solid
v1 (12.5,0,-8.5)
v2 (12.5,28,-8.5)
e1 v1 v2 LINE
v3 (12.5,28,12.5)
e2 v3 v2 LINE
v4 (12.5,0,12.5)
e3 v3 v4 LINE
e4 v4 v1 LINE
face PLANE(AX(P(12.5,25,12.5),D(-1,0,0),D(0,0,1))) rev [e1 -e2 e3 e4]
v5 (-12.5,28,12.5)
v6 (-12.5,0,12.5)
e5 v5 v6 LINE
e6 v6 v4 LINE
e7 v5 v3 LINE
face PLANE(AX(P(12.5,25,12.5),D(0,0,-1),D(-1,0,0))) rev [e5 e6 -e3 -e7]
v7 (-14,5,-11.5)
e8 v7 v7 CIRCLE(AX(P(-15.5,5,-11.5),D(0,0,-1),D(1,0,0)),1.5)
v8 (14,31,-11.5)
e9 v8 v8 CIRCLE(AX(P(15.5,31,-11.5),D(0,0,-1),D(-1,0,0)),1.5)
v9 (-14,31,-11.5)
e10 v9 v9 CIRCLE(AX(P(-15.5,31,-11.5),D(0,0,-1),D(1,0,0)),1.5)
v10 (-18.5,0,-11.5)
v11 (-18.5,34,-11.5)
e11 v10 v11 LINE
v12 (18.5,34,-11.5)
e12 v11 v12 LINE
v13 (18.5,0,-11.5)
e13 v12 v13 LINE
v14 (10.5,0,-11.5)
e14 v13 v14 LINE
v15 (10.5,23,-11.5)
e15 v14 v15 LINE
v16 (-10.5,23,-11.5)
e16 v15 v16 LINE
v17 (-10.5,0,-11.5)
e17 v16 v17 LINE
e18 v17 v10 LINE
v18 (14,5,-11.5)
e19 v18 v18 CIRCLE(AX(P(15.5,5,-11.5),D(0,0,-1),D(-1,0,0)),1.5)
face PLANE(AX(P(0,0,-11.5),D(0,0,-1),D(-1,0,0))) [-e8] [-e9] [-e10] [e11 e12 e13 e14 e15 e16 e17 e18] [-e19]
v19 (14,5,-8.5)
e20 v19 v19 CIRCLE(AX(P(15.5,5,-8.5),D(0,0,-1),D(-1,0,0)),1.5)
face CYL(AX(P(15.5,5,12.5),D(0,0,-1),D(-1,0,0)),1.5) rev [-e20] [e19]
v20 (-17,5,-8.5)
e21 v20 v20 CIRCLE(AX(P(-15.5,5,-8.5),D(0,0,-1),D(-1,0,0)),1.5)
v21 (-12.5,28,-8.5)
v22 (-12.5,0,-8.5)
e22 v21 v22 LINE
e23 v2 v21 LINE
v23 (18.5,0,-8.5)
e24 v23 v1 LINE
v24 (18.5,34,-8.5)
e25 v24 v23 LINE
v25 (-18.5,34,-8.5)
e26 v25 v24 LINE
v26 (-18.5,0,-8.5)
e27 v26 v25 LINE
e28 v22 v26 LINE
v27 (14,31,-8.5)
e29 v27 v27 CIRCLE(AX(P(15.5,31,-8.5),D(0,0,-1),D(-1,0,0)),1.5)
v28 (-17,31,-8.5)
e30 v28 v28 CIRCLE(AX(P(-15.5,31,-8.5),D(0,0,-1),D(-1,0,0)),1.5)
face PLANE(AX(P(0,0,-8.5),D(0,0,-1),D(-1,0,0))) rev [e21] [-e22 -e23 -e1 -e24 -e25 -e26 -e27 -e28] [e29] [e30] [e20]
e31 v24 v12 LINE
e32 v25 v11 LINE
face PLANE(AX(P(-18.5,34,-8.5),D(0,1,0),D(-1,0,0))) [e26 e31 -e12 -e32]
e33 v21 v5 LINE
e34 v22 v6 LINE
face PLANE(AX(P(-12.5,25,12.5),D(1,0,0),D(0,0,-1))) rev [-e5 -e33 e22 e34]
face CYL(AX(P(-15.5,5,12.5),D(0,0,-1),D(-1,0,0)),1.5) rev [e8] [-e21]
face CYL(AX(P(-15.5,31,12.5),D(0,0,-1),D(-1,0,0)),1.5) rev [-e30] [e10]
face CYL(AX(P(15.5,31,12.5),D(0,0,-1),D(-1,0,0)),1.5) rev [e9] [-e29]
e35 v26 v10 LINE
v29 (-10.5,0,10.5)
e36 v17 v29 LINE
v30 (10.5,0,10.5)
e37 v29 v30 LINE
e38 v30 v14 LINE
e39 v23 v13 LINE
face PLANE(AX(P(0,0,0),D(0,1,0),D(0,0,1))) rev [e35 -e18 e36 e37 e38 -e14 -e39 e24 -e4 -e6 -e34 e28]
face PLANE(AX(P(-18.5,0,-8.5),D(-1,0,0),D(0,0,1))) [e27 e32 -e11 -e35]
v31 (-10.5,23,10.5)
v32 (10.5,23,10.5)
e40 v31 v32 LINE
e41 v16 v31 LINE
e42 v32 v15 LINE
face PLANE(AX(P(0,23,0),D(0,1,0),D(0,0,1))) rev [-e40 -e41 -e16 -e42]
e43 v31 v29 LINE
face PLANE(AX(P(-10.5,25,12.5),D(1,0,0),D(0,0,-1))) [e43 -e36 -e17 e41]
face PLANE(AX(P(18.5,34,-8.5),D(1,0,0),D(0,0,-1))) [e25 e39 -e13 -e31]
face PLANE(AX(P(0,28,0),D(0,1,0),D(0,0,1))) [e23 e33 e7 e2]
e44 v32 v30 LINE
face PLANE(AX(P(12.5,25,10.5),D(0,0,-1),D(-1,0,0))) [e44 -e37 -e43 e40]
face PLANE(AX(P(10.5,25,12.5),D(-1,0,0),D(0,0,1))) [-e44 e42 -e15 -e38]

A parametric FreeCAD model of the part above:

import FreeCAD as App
import Part
import Sketcher

V = App.Vector
Q = App.Units.Quantity


def faces_at(feature, points):
    """Names of the faces that lie closest to the given points."""
    faces = feature.Shape.Faces
    near = lambda p: min(range(len(faces)), key=lambda i: faces[i].distToShape(Part.Vertex(*p))[0])
    return sorted({f"Face{near(p) + 1}" for p in points})


def add_polygon(sketch, points):
    """Adds a closed chain of lines whose ends are joined by coincident constraints."""
    first, n = sketch.GeometryCount, len(points)
    for a, b in zip(points, points[1:] + points[:1]):
        sketch.addGeometry(Part.LineSegment(App.Vector(*a, 0), App.Vector(*b, 0)), False)
    for i in range(n):
        sketch.addConstraint(Sketcher.Constraint("Coincident", first + i, 2, first + (i + 1) % n, 1))

doc = App.newDocument("Part")
body = doc.addObject("PartDesign::Body", "Body")

# Sketch on XZ plane
sketch1 = body.newObject("Sketcher::SketchObject", "Sketch")
sketch1.AttachmentSupport = (doc.getObject("XZ_Plane"), [""])
sketch1.MapMode = "FlatFace"
add_polygon(sketch1, [(-12.5, -12.5), (-12.5, 12.5), (12.5, 12.5), (12.5, -12.5)])  # lines 0-3
sketch1.addConstraint(Sketcher.Constraint("Vertical", 0))
sketch1.addConstraint(Sketcher.Constraint("Horizontal", 1))
sketch1.addConstraint(Sketcher.Constraint("Vertical", 2))
sketch1.addConstraint(Sketcher.Constraint("Horizontal", 3))
sketch1.addConstraint(Sketcher.Constraint("Symmetric", 0, 2, 2, 2, -1, 1))
sketch1.addConstraint(Sketcher.Constraint("Equal", 3, 0))
sketch1.addConstraint(Sketcher.Constraint("DistanceX", 1, 1, 1, 2, Q("25 mm")))
pad1 = body.newObject("PartDesign::Pad", "Pad")
pad1.Profile = sketch1
pad1.Length = 25
pad1.Reversed = True
doc.recompute()

thickness = body.newObject("PartDesign::Thickness", "Thickness")
thickness.Base = (pad1, faces_at(pad1, [(0, 12.5, -12.5)]))
thickness.Value = 2
thickness.Reversed = True
thickness.Join = "Intersection"

# Sketch on XZ plane
sketch2 = body.newObject("Sketcher::SketchObject", "Sketch001")
sketch2.AttachmentSupport = (doc.getObject("XZ_Plane"), [""])
sketch2.MapMode = "FlatFace"
sketch2.AttachmentOffset = App.Placement(V(0, 0, -2), App.Rotation())
add_polygon(sketch2, [(-10.5, -12.5), (-10.5, 10.5), (10.5, 10.5), (10.5, -12.5)])  # lines 0-3
sketch2.addConstraint(Sketcher.Constraint("Vertical", 0))
sketch2.addConstraint(Sketcher.Constraint("Horizontal", 1))
sketch2.addConstraint(Sketcher.Constraint("Vertical", 2))
sketch2.addConstraint(Sketcher.Constraint("Horizontal", 3))
sketch2.addConstraint(Sketcher.Constraint("DistanceX", 1, 1, 1, 2, Q("21 mm")))
sketch2.addConstraint(Sketcher.Constraint("DistanceY", 0, 1, 0, 2, Q("23 mm")))
sketch2.addConstraint(Sketcher.Constraint("DistanceX", 0, 2, -1, 1, Q("10.5 mm")))
sketch2.addConstraint(Sketcher.Constraint("DistanceY", -1, 1, 0, 2, Q("10.5 mm")))
pocket1 = body.newObject("PartDesign::Pocket", "Pocket")
pocket1.Profile = sketch2
pocket1.Length = 25
pocket1.Reversed = True

# Sketch on XZ plane
sketch3 = body.newObject("Sketcher::SketchObject", "Sketch002")
sketch3.AttachmentSupport = (doc.getObject("XZ_Plane"), [""])
sketch3.MapMode = "FlatFace"
sketch3.AttachmentOffset = App.Placement(V(0, 0, -25), App.Rotation())
add_polygon(sketch3, [(-12.5, -12.5), (-12.5, 12.5), (12.5, 12.5), (12.5, -12.5)])  # lines 0-3
sketch3.addConstraint(Sketcher.Constraint("Vertical", 0))
sketch3.addConstraint(Sketcher.Constraint("Horizontal", 1))
sketch3.addConstraint(Sketcher.Constraint("Vertical", 2))
sketch3.addConstraint(Sketcher.Constraint("Horizontal", 3))
sketch3.addConstraint(Sketcher.Constraint("Symmetric", 0, 2, 2, 2, -1, 1))
sketch3.addConstraint(Sketcher.Constraint("Equal", 3, 0))
sketch3.addConstraint(Sketcher.Constraint("DistanceX", 1, 1, 1, 2, Q("25 mm")))
pad2 = body.newObject("PartDesign::Pad", "Pad001")
pad2.Profile = sketch3
pad2.Length = 3
pad2.Reversed = True

# Sketch on XY plane
sketch4 = body.newObject("Sketcher::SketchObject", "Sketch003")
sketch4.AttachmentSupport = (doc.getObject("XY_Plane"), [""])
sketch4.MapMode = "FlatFace"
sketch4.AttachmentOffset = App.Placement(V(0, 0, -12.5), App.Rotation())
add_polygon(sketch4, [(-18.5, 0), (-18.5, 34), (18.5, 34), (18.5, 0), (12.5, 0), (12.5, 28), (-12.5, 28), (-12.5, 0)])  # lines 0-7
sketch4.addConstraint(Sketcher.Constraint("Vertical", 0))
sketch4.addConstraint(Sketcher.Constraint("Horizontal", 1))
sketch4.addConstraint(Sketcher.Constraint("Vertical", 2))
sketch4.addConstraint(Sketcher.Constraint("Horizontal", 3))
sketch4.addConstraint(Sketcher.Constraint("Vertical", 4))
sketch4.addConstraint(Sketcher.Constraint("Horizontal", 5))
sketch4.addConstraint(Sketcher.Constraint("Vertical", 6))
sketch4.addConstraint(Sketcher.Constraint("Horizontal", 7))
sketch4.addConstraint(Sketcher.Constraint("Symmetric", 3, 2, 6, 2, -1, 1))
sketch4.addConstraint(Sketcher.Constraint("Symmetric", 2, 2, 7, 2, -2))
sketch4.addConstraint(Sketcher.Constraint("DistanceX", 1, 1, 1, 2, Q("37 mm")))
sketch4.addConstraint(Sketcher.Constraint("DistanceX", 3, 2, 3, 1, Q("6 mm")))
sketch4.addConstraint(Sketcher.Constraint("DistanceY", 0, 1, 0, 2, Q("34 mm")))
sketch4.addConstraint(Sketcher.Constraint("DistanceY", 4, 1, 4, 2, Q("28 mm")))
pad3 = body.newObject("PartDesign::Pad", "Pad002")
pad3.Profile = sketch4
pad3.Length = 4

# Sketch on XY plane
sketch5 = body.newObject("Sketcher::SketchObject", "Sketch004")
sketch5.AttachmentSupport = (doc.getObject("XY_Plane"), [""])
sketch5.MapMode = "FlatFace"
sketch5.AttachmentOffset = App.Placement(V(0, 0, -12.5), App.Rotation())
add_polygon(sketch5, [(-10.5, 0), (-18.5, 0), (-18.5, 34), (18.5, 34), (18.5, 0), (10.5, 0), (10.5, 23), (-10.5, 23)])  # lines 0-7
sketch5.addConstraint(Sketcher.Constraint("Horizontal", 0))
sketch5.addConstraint(Sketcher.Constraint("Vertical", 1))
sketch5.addConstraint(Sketcher.Constraint("Horizontal", 2))
sketch5.addConstraint(Sketcher.Constraint("Vertical", 3))
sketch5.addConstraint(Sketcher.Constraint("Horizontal", 4))
sketch5.addConstraint(Sketcher.Constraint("Vertical", 5))
sketch5.addConstraint(Sketcher.Constraint("Horizontal", 6))
sketch5.addConstraint(Sketcher.Constraint("Vertical", 7))
sketch5.addConstraint(Sketcher.Constraint("Symmetric", 0, 2, 3, 2, -1, 1))
sketch5.addConstraint(Sketcher.Constraint("Symmetric", 4, 2, 7, 2, -2))
sketch5.addConstraint(Sketcher.Constraint("DistanceX", 0, 2, 0, 1, Q("8 mm")))
sketch5.addConstraint(Sketcher.Constraint("DistanceX", 2, 1, 2, 2, Q("37 mm")))
sketch5.addConstraint(Sketcher.Constraint("DistanceY", 1, 1, 1, 2, Q("34 mm")))
sketch5.addConstraint(Sketcher.Constraint("DistanceY", 5, 1, 5, 2, Q("23 mm")))
pocket2 = body.newObject("PartDesign::Pocket", "Pocket001")
pocket2.Profile = sketch5
pocket2.Length = 1
pocket2.Reversed = True

# Sketch on XY plane
sketch6 = body.newObject("Sketcher::SketchObject", "Sketch005")
sketch6.AttachmentSupport = (doc.getObject("XY_Plane"), [""])
sketch6.MapMode = "FlatFace"
sketch6.AttachmentOffset = App.Placement(V(0, 0, -11.5), App.Rotation())
sketch6.addGeometry(Part.Circle(V(15.5, 5, 0), V(0, 0, 1), 1.5), False)
sketch6.addGeometry(Part.Circle(V(15.5, 31, 0), V(0, 0, 1), 1.5), False)
sketch6.addGeometry(Part.Circle(V(-15.5, 5, 0), V(0, 0, 1), 1.5), False)
sketch6.addGeometry(Part.Circle(V(-15.5, 31, 0), V(0, 0, 1), 1.5), False)
sketch6.addConstraint(Sketcher.Constraint("Equal", 0, 1))
sketch6.addConstraint(Sketcher.Constraint("Equal", 1, 2))
sketch6.addConstraint(Sketcher.Constraint("Equal", 2, 3))
sketch6.addConstraint(Sketcher.Constraint("Symmetric", 0, 3, 2, 3, -2))
sketch6.addConstraint(Sketcher.Constraint("Symmetric", 1, 3, 3, 3, -2))
sketch6.addConstraint(Sketcher.Constraint("Vertical", 0, 3, 1, 3))
sketch6.addConstraint(Sketcher.Constraint("Diameter", 0, Q("3 mm")))
sketch6.addConstraint(Sketcher.Constraint("DistanceY", -1, 1, 0, 3, Q("5 mm")))
sketch6.addConstraint(Sketcher.Constraint("DistanceY", -1, 1, 1, 3, Q("31 mm")))
sketch6.addConstraint(Sketcher.Constraint("DistanceX", 2, 3, 0, 3, Q("31 mm")))
pocket3 = body.newObject("PartDesign::Pocket", "Pocket002")
pocket3.Profile = sketch6
pocket3.Type = "ThroughAll"
pocket3.Reversed = True

doc.recompute()
